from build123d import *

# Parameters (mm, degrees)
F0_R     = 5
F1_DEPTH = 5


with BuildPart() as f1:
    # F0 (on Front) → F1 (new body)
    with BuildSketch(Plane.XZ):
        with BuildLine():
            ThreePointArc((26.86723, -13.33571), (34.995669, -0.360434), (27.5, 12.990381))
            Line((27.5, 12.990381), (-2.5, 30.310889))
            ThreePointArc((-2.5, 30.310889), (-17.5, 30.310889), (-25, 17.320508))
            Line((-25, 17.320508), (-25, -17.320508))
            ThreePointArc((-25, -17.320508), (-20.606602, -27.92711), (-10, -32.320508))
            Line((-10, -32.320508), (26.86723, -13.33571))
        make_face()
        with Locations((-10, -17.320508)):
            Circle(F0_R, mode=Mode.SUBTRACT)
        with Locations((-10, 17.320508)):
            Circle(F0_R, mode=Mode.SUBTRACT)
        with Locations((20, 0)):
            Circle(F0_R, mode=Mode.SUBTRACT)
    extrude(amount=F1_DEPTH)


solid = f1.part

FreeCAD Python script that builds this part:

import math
import FreeCAD as App
import Part
import Sketcher
Q = App.Units.Quantity

doc = App.newDocument("Part")
body = doc.addObject("PartDesign::Body", "Body")

sketch1 = body.newObject("Sketcher::SketchObject", "Sketch")
sketch1.AttachmentSupport = (doc.getObject("XZ_Plane"), [""])
sketch1.MapMode = "FlatFace"
sketch1.addGeometry([
    Part.ArcOfCircle(Part.Circle(App.Vector(20, 0, 0), App.Vector(0, 0, 1), 15), math.radians(-63), math.radians(60)),
    Part.LineSegment(App.Vector(28, 13, 0), App.Vector(-2, 30, 0)),
    Part.ArcOfCircle(Part.Circle(App.Vector(-10, 17, 0), App.Vector(0, 0, 1), 15), math.radians(60), math.radians(180)),
    Part.LineSegment(App.Vector(-25, 17, 0), App.Vector(-25, -17, 0)),
    Part.ArcOfCircle(Part.Circle(App.Vector(-10, -17, 0), App.Vector(0, 0, 1), 15), math.radians(180), math.radians(270)),
    Part.LineSegment(App.Vector(-10, -32, 0), App.Vector(27, -13, 0)),
    Part.Circle(App.Vector(-10, -17, 0), App.Vector(0, 0, 1), 5),
    Part.Circle(App.Vector(20, 0, 0), App.Vector(0, 0, 1), 5),
    Part.Circle(App.Vector(-10, 17, 0), App.Vector(0, 0, 1), 5),
], False)
sketch1.addConstraint([
    Sketcher.Constraint("Tangent", 0, 2, 1, 1),
    Sketcher.Constraint("Tangent", 1, 2, 2, 1),
    Sketcher.Constraint("Tangent", 2, 2, 3, 1),
    Sketcher.Constraint("Tangent", 3, 2, 4, 1),
    Sketcher.Constraint("Coincident", 4, 2, 5, 1),
    Sketcher.Constraint("Tangent", 5, 2, 0, 1),
    Sketcher.Constraint("Vertical", 3),
    Sketcher.Constraint("Coincident", 6, 3, 4, 3),
    Sketcher.Constraint("Coincident", 7, 3, 0, 3),
    Sketcher.Constraint("Coincident", 8, 3, 2, 3),
    Sketcher.Constraint("Equal", 0, 2),
    Sketcher.Constraint("Equal", 2, 4),
    Sketcher.Constraint("Equal", 6, 7),
    Sketcher.Constraint("Equal", 7, 8),
    Sketcher.Constraint("PointOnObject", 0, 3, -1),
    Sketcher.Constraint("Vertical", 8, 3, 4, 2),
    Sketcher.Constraint("Diameter", 6, 10.0),
    Sketcher.Constraint("Radius", 0, 15.0),
    Sketcher.Constraint("Angle", 1, Q("150 deg")),
    Sketcher.Constraint("DistanceX", -1, 1, 0, 3, 20.0),
    Sketcher.Constraint("DistanceX", 2, 3, -1, 1, 10.0),
    Sketcher.Constraint("DistanceY", 4, 3, 5, 2, 3.984799),
])
pad1 = body.newObject("PartDesign::Pad", "Pad")
pad1.Profile = sketch1
pad1.Length = 5

doc.recompute()
